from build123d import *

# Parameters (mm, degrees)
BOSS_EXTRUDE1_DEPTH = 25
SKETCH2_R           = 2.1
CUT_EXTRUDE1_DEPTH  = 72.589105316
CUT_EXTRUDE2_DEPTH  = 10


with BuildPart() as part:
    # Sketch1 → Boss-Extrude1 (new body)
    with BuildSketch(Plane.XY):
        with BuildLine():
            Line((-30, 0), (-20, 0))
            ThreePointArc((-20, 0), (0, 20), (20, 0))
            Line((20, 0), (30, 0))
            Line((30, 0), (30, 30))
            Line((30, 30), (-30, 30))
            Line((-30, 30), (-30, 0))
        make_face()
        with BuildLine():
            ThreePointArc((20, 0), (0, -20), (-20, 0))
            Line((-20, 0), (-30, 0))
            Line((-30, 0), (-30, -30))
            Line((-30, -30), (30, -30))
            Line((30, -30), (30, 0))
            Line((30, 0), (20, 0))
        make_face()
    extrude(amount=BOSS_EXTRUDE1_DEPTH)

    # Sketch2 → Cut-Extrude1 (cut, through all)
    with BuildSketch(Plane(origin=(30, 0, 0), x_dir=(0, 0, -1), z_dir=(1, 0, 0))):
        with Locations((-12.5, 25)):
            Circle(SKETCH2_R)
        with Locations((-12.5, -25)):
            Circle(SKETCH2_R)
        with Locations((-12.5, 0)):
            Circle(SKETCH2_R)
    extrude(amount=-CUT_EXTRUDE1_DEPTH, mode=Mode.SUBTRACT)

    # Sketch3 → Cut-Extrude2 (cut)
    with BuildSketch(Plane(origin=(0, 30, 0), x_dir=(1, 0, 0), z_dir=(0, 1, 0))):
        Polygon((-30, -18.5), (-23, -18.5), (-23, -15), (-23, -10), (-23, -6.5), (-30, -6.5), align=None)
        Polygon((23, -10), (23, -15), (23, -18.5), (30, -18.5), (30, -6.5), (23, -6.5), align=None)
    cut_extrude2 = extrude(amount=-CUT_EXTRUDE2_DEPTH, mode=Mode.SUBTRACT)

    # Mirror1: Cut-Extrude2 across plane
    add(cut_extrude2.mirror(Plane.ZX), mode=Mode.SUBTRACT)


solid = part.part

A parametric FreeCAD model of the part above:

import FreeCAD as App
import Part
import Sketcher
from FreeCAD import Vector

doc = App.newDocument("Part")
body = doc.addObject("PartDesign::Body", "Body")

# Sketch on XY plane
sketch1 = body.newObject("Sketcher::SketchObject", "Sketch")
sketch1.AttachmentSupport = (doc.getObject("XY_Plane"), [""])
sketch1.MapMode = "FlatFace"
sketch1.addGeometry([
    Part.LineSegment(Vector(30, 30, 0), Vector(-30, 30, 0)),  # 0
    Part.LineSegment(Vector(-30, 30, 0), Vector(-30, -30, 0)),  # 1
    Part.LineSegment(Vector(-30, -30, 0), Vector(30, -30, 0)),  # 2
    Part.LineSegment(Vector(30, -30, 0), Vector(30, 30, 0)),  # 3
    Part.Circle(Vector(0, 0, 0), Vector(0, 0, 1), 20),  # 4
], False)
sketch1.addConstraint([
    Sketcher.Constraint("Coincident", 0, 2, 1, 1),
    Sketcher.Constraint("Coincident", 1, 2, 2, 1),
    Sketcher.Constraint("Coincident", 2, 2, 3, 1),
    Sketcher.Constraint("Coincident", 3, 2, 0, 1),
    Sketcher.Constraint("Horizontal", 0),
    Sketcher.Constraint("Vertical", 1),
    Sketcher.Constraint("Horizontal", 2),
    Sketcher.Constraint("Vertical", 3),
    Sketcher.Constraint("Coincident", 4, 3, -1, 1),
    Sketcher.Constraint("Symmetric", 0, 2, 2, 2, -1, 1),
    Sketcher.Constraint("Equal", 2, 1),
    Sketcher.Constraint("Diameter", 4, 40.0),
    Sketcher.Constraint("DistanceX", 0, 2, 0, 1, 60.0),
])
pad1 = body.newObject("PartDesign::Pad", "Pad")
pad1.Profile = sketch1
pad1.Length = 25

# Sketch on YZ plane
sketch2 = body.newObject("Sketcher::SketchObject", "Sketch001")
sketch2.AttachmentSupport = (doc.getObject("YZ_Plane"), [""])
sketch2.MapMode = "FlatFace"
sketch2.AttachmentOffset = App.Placement(Vector(0, 0, 30), App.Rotation())
sketch2.addGeometry([
    Part.Circle(Vector(25, 12.5, 0), Vector(0, 0, 1), 2.1),
    Part.Circle(Vector(-25, 12.5, 0), Vector(0, 0, 1), 2.1),
    Part.Circle(Vector(0, 12.5, 0), Vector(0, 0, 1), 2.1),
], False)
sketch2.addConstraint([
    Sketcher.Constraint("Equal", 0, 1),
    Sketcher.Constraint("Equal", 1, 2),
    Sketcher.Constraint("Symmetric", 0, 3, 1, 3, -2),
    Sketcher.Constraint("PointOnObject", 2, 3, -2),
    Sketcher.Constraint("Horizontal", 1, 3, 2, 3),
    Sketcher.Constraint("Diameter", 0, 4.2),
    Sketcher.Constraint("DistanceX", -1, 1, 0, 3, 25.0),
    Sketcher.Constraint("DistanceY", -1, 1, 0, 3, 12.5),
])
pocket1 = body.newObject("PartDesign::Pocket", "Pocket")
pocket1.Profile = sketch2
pocket1.Type = "ThroughAll"

# Sketch on XZ plane
sketch3 = body.newObject("Sketcher::SketchObject", "Sketch002")
sketch3.AttachmentSupport = (doc.getObject("XZ_Plane"), [""])
sketch3.MapMode = "FlatFace"
sketch3.AttachmentOffset = App.Placement(Vector(0, 0, -30), App.Rotation())
sketch3.addGeometry([
    Part.LineSegment(Vector(-30, 18.5, 0), Vector(-23, 18.5, 0)),  # 0
    Part.LineSegment(Vector(-23, 18.5, 0), Vector(-23, 6.5, 0)),  # 1
    Part.LineSegment(Vector(-23, 6.5, 0), Vector(-30, 6.5, 0)),  # 2
    Part.LineSegment(Vector(-30, 6.5, 0), Vector(-30, 18.5, 0)),  # 3
    Part.LineSegment(Vector(23, 18.5, 0), Vector(30, 18.5, 0)),  # 4
    Part.LineSegment(Vector(30, 18.5, 0), Vector(30, 6.5, 0)),  # 5
    Part.LineSegment(Vector(30, 6.5, 0), Vector(23, 6.5, 0)),  # 6
    Part.LineSegment(Vector(23, 6.5, 0), Vector(23, 18.5, 0)),  # 7
], False)
sketch3.addConstraint([
    Sketcher.Constraint("Coincident", 0, 2, 1, 1),
    Sketcher.Constraint("Coincident", 1, 2, 2, 1),
    Sketcher.Constraint("Coincident", 2, 2, 3, 1),
    Sketcher.Constraint("Coincident", 3, 2, 0, 1),
    Sketcher.Constraint("Coincident", 4, 2, 5, 1),
    Sketcher.Constraint("Coincident", 5, 2, 6, 1),
    Sketcher.Constraint("Coincident", 6, 2, 7, 1),
    Sketcher.Constraint("Coincident", 7, 2, 4, 1),
    Sketcher.Constraint("Horizontal", 0),
    Sketcher.Constraint("Vertical", 1),
    Sketcher.Constraint("Horizontal", 2),
    Sketcher.Constraint("Vertical", 3),
    Sketcher.Constraint("Horizontal", 4),
    Sketcher.Constraint("Vertical", 5),
    Sketcher.Constraint("Horizontal", 6),
    Sketcher.Constraint("Vertical", 7),
    Sketcher.Constraint("Symmetric", 3, 2, 4, 2, -2),
    Sketcher.Constraint("Symmetric", 1, 2, 6, 2, -2),
    Sketcher.Constraint("DistanceX", 0, 1, 0, 2, 7.0),
    Sketcher.Constraint("DistanceY", 1, 2, 1, 1, 12.0),
    Sketcher.Constraint("DistanceX", 0, 2, -1, 1, 23.0),
    Sketcher.Constraint("DistanceY", -1, 1, 0, 2, 18.5),
])
pocket2 = body.newObject("PartDesign::Pocket", "Pocket001")
pocket2.Profile = sketch3
pocket2.Length = 10
pocket2.Reversed = True
doc.recompute()

mirrored = body.newObject("PartDesign::Mirrored", "Mirrored")
mirrored.Originals = [pocket2]
mirrored.MirrorPlane = (doc.getObject("XZ_Plane"), [""])
body.Tip = mirrored

doc.recompute()
